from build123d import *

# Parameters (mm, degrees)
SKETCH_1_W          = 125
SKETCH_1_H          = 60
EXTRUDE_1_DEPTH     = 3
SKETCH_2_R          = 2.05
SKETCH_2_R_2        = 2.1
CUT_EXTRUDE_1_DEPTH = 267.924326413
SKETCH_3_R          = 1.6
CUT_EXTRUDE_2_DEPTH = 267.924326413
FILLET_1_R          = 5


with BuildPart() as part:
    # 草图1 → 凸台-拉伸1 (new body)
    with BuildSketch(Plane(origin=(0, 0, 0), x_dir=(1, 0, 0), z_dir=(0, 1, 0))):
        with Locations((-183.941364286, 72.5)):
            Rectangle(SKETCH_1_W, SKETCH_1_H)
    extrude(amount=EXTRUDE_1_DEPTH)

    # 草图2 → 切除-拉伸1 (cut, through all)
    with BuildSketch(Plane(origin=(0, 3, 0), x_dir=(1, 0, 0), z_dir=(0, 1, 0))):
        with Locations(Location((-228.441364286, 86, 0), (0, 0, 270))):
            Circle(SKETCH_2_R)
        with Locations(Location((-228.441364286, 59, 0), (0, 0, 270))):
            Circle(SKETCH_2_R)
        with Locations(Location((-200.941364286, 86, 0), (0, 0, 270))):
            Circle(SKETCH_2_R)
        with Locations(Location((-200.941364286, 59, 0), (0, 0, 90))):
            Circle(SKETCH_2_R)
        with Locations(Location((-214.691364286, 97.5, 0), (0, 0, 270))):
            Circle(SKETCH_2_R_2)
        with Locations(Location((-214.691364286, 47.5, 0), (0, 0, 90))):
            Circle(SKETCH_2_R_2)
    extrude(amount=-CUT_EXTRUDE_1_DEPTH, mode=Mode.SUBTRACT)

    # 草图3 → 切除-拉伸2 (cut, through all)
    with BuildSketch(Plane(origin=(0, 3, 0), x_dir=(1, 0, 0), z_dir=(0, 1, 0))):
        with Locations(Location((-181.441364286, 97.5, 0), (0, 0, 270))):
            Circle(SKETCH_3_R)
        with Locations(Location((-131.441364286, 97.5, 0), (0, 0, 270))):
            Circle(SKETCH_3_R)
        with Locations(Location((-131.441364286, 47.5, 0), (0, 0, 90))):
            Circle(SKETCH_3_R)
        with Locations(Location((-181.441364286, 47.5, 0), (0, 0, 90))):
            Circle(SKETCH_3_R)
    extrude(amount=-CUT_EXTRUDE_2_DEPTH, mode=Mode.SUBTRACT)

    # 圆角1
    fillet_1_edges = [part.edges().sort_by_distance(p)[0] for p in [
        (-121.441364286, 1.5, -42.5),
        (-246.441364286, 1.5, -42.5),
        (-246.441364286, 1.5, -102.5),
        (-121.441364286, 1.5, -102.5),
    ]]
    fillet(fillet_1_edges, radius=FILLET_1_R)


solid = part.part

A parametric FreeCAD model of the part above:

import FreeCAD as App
import Part
import Sketcher

V = App.Vector


def edges_at(feature, points):
    """Names of the edges that pass closest to the given points."""
    edges = feature.Shape.Edges
    near = lambda p: min(range(len(edges)), key=lambda i: edges[i].distToShape(Part.Vertex(*p))[0])
    return sorted({f"Edge{near(p) + 1}" for p in points})


def add_polygon(sketch, points):
    """Adds a closed chain of lines whose ends are joined by coincident constraints."""
    first, n = sketch.GeometryCount, len(points)
    for a, b in zip(points, points[1:] + points[:1]):
        sketch.addGeometry(Part.LineSegment(App.Vector(*a, 0), App.Vector(*b, 0)), False)
    for i in range(n):
        sketch.addConstraint(Sketcher.Constraint("Coincident", first + i, 2, first + (i + 1) % n, 1))

doc = App.newDocument("Part")
body = doc.addObject("PartDesign::Body", "Body")

# Sketch on XZ plane
sketch1 = doc.addObject("Sketcher::SketchObject", "Sketch")
body.addObject(sketch1)
sketch1.AttachmentSupport = (doc.XZ_Plane, [""])
sketch1.MapMode = "FlatFace"
add_polygon(sketch1, [(-246.441364, -102.5), (-246.441364, -42.5), (-121.441364, -42.5), (-121.441364, -102.5)])  # lines 0-3
sketch1.addConstraint([
    Sketcher.Constraint("Vertical", 0),
    Sketcher.Constraint("Horizontal", 1),
    Sketcher.Constraint("Vertical", 2),
    Sketcher.Constraint("Horizontal", 3),
    Sketcher.Constraint("DistanceX", 1, 1, 1, 2, 125.0),
    Sketcher.Constraint("DistanceY", 0, 1, 0, 2, 60.0),
    Sketcher.Constraint("DistanceY", 0, 2, -1, 1, 42.5),
    Sketcher.Constraint("DistanceX", 0, 2, -1, 1, 246.441364),
])
pad1 = doc.addObject("PartDesign::Pad", "Pad")
body.addObject(pad1)
pad1.Profile = sketch1
pad1.Length = 3
pad1.Reversed = True

# Sketch on XZ plane
sketch2 = doc.addObject("Sketcher::SketchObject", "Sketch001")
body.addObject(sketch2)
sketch2.AttachmentSupport = (doc.XZ_Plane, [""])
sketch2.MapMode = "FlatFace"
sketch2.AttachmentOffset = App.Placement(V(0, 0, -3), App.Rotation())
sketch2.addGeometry([
    Part.Circle(V(-228.441364, -86, 0), V(0, 0, 1), 2.05),  # 0
    Part.Circle(V(-228.441364, -59, 0), V(0, 0, 1), 2.05),  # 1
    Part.Circle(V(-200.941364, -86, 0), V(0, 0, 1), 2.05),  # 2
    Part.Circle(V(-200.941364, -59, 0), V(0, 0, 1), 2.05),  # 3
    Part.Circle(V(-214.691364, -97.5, 0), V(0, 0, 1), 2.1),  # 4
    Part.Circle(V(-214.691364, -47.5, 0), V(0, 0, 1), 2.1),  # 5
], False)
sketch2.addConstraint([
    Sketcher.Constraint("Equal", 0, 1),
    Sketcher.Constraint("Equal", 1, 2),
    Sketcher.Constraint("Equal", 2, 3),
    Sketcher.Constraint("Equal", 4, 5),
    Sketcher.Constraint("Horizontal", 0, 3, 2, 3),
    Sketcher.Constraint("Horizontal", 1, 3, 3, 3),
    Sketcher.Constraint("Vertical", 0, 3, 1, 3),
    Sketcher.Constraint("Vertical", 2, 3, 3, 3),
    Sketcher.Constraint("Vertical", 4, 3, 5, 3),
    Sketcher.Constraint("Diameter", 0, 4.1),
    Sketcher.Constraint("Diameter", 4, 4.2),
    Sketcher.Constraint("DistanceY", 0, 3, -1, 1, 86.0),
    Sketcher.Constraint("DistanceY", 1, 3, -1, 1, 59.0),
    Sketcher.Constraint("DistanceY", 4, 3, 5, 3, 50.0),
    Sketcher.Constraint("DistanceY", 4, 3, -1, 1, 97.5),
    Sketcher.Constraint("DistanceX", 0, 3, 2, 3, 27.5),
    Sketcher.Constraint("DistanceX", 0, 3, 4, 3, 13.75),
    Sketcher.Constraint("DistanceX", 0, 3, -1, 1, 228.441364),
])
pocket1 = doc.addObject("PartDesign::Pocket", "Pocket")
body.addObject(pocket1)
pocket1.Profile = sketch2
pocket1.Type = "ThroughAll"
pocket1.Reversed = True

# Sketch on XZ plane
sketch3 = doc.addObject("Sketcher::SketchObject", "Sketch002")
body.addObject(sketch3)
sketch3.AttachmentSupport = (doc.XZ_Plane, [""])
sketch3.MapMode = "FlatFace"
sketch3.AttachmentOffset = App.Placement(V(0, 0, -3), App.Rotation())
sketch3.addGeometry([
    Part.Circle(V(-181.441364, -97.5, 0), V(0, 0, 1), 1.6),
    Part.Circle(V(-131.441364, -97.5, 0), V(0, 0, 1), 1.6),
    Part.Circle(V(-131.441364, -47.5, 0), V(0, 0, 1), 1.6),
    Part.Circle(V(-181.441364, -47.5, 0), V(0, 0, 1), 1.6),
], False)
sketch3.addConstraint([
    Sketcher.Constraint("Equal", 0, 1),
    Sketcher.Constraint("Equal", 1, 2),
    Sketcher.Constraint("Equal", 2, 3),
    Sketcher.Constraint("Horizontal", 0, 3, 1, 3),
    Sketcher.Constraint("Horizontal", 2, 3, 3, 3),
    Sketcher.Constraint("Vertical", 1, 3, 2, 3),
    Sketcher.Constraint("Vertical", 0, 3, 3, 3),
    Sketcher.Constraint("Diameter", 0, 3.2),
    Sketcher.Constraint("DistanceX", 0, 3, 1, 3, 50.0),
    Sketcher.Constraint("DistanceY", 1, 3, 2, 3, 50.0),
    Sketcher.Constraint("DistanceY", 0, 3, -1, 1, 97.5),
    Sketcher.Constraint("DistanceX", 0, 3, -1, 1, 181.441364),
])
pocket2 = doc.addObject("PartDesign::Pocket", "Pocket001")
body.addObject(pocket2)
pocket2.Profile = sketch3
pocket2.Type = "ThroughAll"
pocket2.Reversed = True
doc.recompute()

fillet = doc.addObject("PartDesign::Fillet", "Fillet")
body.addObject(fillet)
fillet.Base = (pocket2, edges_at(pocket2, [
    (-121.441, 1.5, -42.5),
    (-246.441, 1.5, -42.5),
    (-246.441, 1.5, -102.5),
    (-121.441, 1.5, -102.5),
]))
fillet.Radius = 5

doc.recompute()
